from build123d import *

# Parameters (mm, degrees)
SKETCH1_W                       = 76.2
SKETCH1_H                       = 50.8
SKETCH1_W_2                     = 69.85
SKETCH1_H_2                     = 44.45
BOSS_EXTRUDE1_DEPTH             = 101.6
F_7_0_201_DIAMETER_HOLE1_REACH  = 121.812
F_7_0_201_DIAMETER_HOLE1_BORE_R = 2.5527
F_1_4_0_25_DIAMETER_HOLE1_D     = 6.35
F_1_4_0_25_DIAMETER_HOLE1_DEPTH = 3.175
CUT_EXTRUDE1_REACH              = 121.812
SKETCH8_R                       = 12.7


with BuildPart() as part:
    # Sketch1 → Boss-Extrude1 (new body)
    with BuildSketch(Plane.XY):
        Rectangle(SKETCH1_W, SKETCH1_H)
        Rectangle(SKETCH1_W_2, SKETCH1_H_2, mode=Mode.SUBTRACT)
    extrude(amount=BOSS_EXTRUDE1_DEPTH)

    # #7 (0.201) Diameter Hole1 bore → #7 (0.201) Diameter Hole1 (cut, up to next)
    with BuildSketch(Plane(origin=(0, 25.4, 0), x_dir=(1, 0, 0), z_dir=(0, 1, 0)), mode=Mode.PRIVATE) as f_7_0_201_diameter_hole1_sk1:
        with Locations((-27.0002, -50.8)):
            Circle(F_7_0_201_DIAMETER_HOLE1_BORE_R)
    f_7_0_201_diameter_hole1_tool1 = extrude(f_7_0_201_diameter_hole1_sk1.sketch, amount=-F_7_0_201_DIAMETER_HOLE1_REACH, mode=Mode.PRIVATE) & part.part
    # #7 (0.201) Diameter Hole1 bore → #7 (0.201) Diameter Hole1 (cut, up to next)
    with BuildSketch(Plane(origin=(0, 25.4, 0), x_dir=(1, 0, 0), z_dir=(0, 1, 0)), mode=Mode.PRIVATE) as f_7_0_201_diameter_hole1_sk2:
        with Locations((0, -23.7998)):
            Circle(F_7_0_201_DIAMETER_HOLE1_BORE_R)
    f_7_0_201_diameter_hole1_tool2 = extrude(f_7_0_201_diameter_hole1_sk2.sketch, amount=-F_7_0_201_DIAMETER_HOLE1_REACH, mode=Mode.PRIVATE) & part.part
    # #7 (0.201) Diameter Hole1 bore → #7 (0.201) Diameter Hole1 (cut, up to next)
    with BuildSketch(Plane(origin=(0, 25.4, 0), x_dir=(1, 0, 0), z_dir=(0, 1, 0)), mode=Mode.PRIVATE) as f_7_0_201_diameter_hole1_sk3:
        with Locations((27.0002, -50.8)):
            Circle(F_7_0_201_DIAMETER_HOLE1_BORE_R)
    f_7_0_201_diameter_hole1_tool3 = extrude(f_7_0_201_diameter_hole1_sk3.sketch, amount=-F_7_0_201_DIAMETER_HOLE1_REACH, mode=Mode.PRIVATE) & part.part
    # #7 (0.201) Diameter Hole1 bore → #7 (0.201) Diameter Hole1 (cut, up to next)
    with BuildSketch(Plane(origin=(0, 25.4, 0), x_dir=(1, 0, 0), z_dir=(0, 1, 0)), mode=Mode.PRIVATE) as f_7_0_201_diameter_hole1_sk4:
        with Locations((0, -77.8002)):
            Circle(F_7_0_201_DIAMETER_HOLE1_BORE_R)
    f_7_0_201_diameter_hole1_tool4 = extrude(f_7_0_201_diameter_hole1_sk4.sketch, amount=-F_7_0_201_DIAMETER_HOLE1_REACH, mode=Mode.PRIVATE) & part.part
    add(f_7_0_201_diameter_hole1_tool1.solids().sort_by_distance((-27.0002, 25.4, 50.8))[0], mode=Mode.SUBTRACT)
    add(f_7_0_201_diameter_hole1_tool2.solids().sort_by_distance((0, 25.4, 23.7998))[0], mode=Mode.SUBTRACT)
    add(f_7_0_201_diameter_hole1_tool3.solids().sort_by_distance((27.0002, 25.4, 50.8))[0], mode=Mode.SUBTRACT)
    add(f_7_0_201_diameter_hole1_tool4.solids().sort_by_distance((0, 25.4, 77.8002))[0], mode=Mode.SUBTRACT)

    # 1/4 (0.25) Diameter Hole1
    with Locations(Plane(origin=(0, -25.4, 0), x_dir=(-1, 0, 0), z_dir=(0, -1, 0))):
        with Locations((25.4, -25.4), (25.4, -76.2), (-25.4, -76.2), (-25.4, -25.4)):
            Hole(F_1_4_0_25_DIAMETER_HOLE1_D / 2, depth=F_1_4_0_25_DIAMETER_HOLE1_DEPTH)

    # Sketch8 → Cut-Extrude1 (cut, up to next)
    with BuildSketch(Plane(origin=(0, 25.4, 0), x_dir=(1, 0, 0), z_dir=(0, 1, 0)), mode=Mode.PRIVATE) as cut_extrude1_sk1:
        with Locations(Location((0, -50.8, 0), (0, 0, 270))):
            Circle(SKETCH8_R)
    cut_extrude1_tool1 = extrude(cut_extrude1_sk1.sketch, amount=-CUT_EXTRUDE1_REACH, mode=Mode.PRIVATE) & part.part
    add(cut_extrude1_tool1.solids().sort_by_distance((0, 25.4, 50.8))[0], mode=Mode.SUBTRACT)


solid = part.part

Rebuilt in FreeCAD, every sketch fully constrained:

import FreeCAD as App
import Part
import Sketcher
from FreeCAD import Vector
Q = App.Units.Quantity

doc = App.newDocument("Part")
body = doc.addObject("PartDesign::Body", "Body")

sketch1 = body.newObject("Sketcher::SketchObject", "Sketch")
sketch1.AttachmentSupport = (doc.getObject("XY_Plane"), [""])
sketch1.MapMode = "FlatFace"
sketch1.addGeometry([
    Part.LineSegment(Vector(-38, 25, 0), Vector(-38, -25, 0)),
    Part.LineSegment(Vector(-38, -25, 0), Vector(38, -25, 0)),
    Part.LineSegment(Vector(38, -25, 0), Vector(38, 25, 0)),
    Part.LineSegment(Vector(38, 25, 0), Vector(-38, 25, 0)),
    Part.LineSegment(Vector(35, -22, 0), Vector(-35, -22, 0)),
    Part.LineSegment(Vector(-35, -22, 0), Vector(-35, 22, 0)),
    Part.LineSegment(Vector(-35, 22, 0), Vector(35, 22, 0)),
    Part.LineSegment(Vector(35, 22, 0), Vector(35, -22, 0)),
], False)
sketch1.addConstraint([
    Sketcher.Constraint("Coincident", 0, 2, 1, 1),
    Sketcher.Constraint("Coincident", 1, 2, 2, 1),
    Sketcher.Constraint("Coincident", 2, 2, 3, 1),
    Sketcher.Constraint("Coincident", 3, 2, 0, 1),
    Sketcher.Constraint("Coincident", 4, 2, 5, 1),
    Sketcher.Constraint("Coincident", 5, 2, 6, 1),
    Sketcher.Constraint("Coincident", 6, 2, 7, 1),
    Sketcher.Constraint("Coincident", 7, 2, 4, 1),
    Sketcher.Constraint("Vertical", 0),
    Sketcher.Constraint("Horizontal", 1),
    Sketcher.Constraint("Vertical", 2),
    Sketcher.Constraint("Horizontal", 3),
    Sketcher.Constraint("Horizontal", 4),
    Sketcher.Constraint("Vertical", 5),
    Sketcher.Constraint("Horizontal", 6),
    Sketcher.Constraint("Vertical", 7),
    Sketcher.Constraint("Symmetric", 0, 2, 2, 2, -1, 1),
    Sketcher.Constraint("Symmetric", 4, 2, 6, 2, -1, 1),
    Sketcher.Constraint("DistanceX", 1, 1, 1, 2, Q("3 in")),
    Sketcher.Constraint("DistanceY", 0, 2, 0, 1, Q("2 in")),
    Sketcher.Constraint("DistanceX", 4, 2, 4, 1, Q("2.75 in")),
    Sketcher.Constraint("DistanceY", 5, 1, 5, 2, Q("1.75 in")),
])
pad1 = body.newObject("PartDesign::Pad", "Pad")
pad1.Profile = sketch1
pad1.Length = Q("4 in")

sketch2 = body.newObject("Sketcher::SketchObject", "Sketch001")
sketch2.AttachmentSupport = (doc.getObject("XZ_Plane"), [""])
sketch2.MapMode = "FlatFace"
sketch2.AttachmentOffset = App.Placement(Vector(0, 0, -1 * 25.4), App.Rotation())
sketch2.addGeometry(Part.Circle(Vector(-27, 50.8, 0), Vector(0, 0, 1), 2.6), False)
sketch2.addConstraint([
    Sketcher.Constraint("Diameter", 0, Q("0.201 in")),
    Sketcher.Constraint("DistanceY", -1, 1, 0, 3, Q("2 in")),
    Sketcher.Constraint("DistanceX", 0, 3, -1, 1, Q("1.063 in")),
])
pocket1 = body.newObject("PartDesign::Pocket", "Pocket")
pocket1.Profile = sketch2
pocket1.Type = "UpToFirst"
pocket1.Reversed = True

sketch3 = body.newObject("Sketcher::SketchObject", "Sketch002")
sketch3.AttachmentSupport = (doc.getObject("XZ_Plane"), [""])
sketch3.MapMode = "FlatFace"
sketch3.AttachmentOffset = App.Placement(Vector(0, 0, -1 * 25.4), App.Rotation())
sketch3.addGeometry(Part.Circle(Vector(0, 23.8, 0), Vector(0, 0, 1), 2.6), False)
sketch3.addConstraint([
    Sketcher.Constraint("PointOnObject", 0, 3, -2),
    Sketcher.Constraint("Diameter", 0, Q("0.201 in")),
    Sketcher.Constraint("DistanceY", -1, 1, 0, 3, Q("0.937 in")),
])
pocket2 = body.newObject("PartDesign::Pocket", "Pocket001")
pocket2.Profile = sketch3
pocket2.Type = "UpToFirst"
pocket2.Reversed = True

sketch4 = body.newObject("Sketcher::SketchObject", "Sketch003")
sketch4.AttachmentSupport = (doc.getObject("XZ_Plane"), [""])
sketch4.MapMode = "FlatFace"
sketch4.AttachmentOffset = App.Placement(Vector(0, 0, -1 * 25.4), App.Rotation())
sketch4.addGeometry(Part.Circle(Vector(27, 50.8, 0), Vector(0, 0, 1), 2.6), False)
sketch4.addConstraint([
    Sketcher.Constraint("Diameter", 0, Q("0.201 in")),
    Sketcher.Constraint("DistanceY", -1, 1, 0, 3, Q("2 in")),
    Sketcher.Constraint("DistanceX", -1, 1, 0, 3, Q("1.063 in")),
])
pocket3 = body.newObject("PartDesign::Pocket", "Pocket002")
pocket3.Profile = sketch4
pocket3.Type = "UpToFirst"
pocket3.Reversed = True

sketch5 = body.newObject("Sketcher::SketchObject", "Sketch004")
sketch5.AttachmentSupport = (doc.getObject("XZ_Plane"), [""])
sketch5.MapMode = "FlatFace"
sketch5.AttachmentOffset = App.Placement(Vector(0, 0, -1 * 25.4), App.Rotation())
sketch5.addGeometry(Part.Circle(Vector(0, 77.8, 0), Vector(0, 0, 1), 2.6), False)
sketch5.addConstraint([
    Sketcher.Constraint("PointOnObject", 0, 3, -2),
    Sketcher.Constraint("Diameter", 0, Q("0.201 in")),
    Sketcher.Constraint("DistanceY", -1, 1, 0, 3, Q("3.063 in")),
])
pocket4 = body.newObject("PartDesign::Pocket", "Pocket003")
pocket4.Profile = sketch5
pocket4.Type = "UpToFirst"
pocket4.Reversed = True

sketch6 = body.newObject("Sketcher::SketchObject", "Sketch005")
sketch6.AttachmentSupport = (doc.getObject("XZ_Plane"), [""])
sketch6.MapMode = "FlatFace"
sketch6.AttachmentOffset = App.Placement(Vector(0, 0, 1 * 25.4), App.Rotation())
sketch6.addGeometry([
    Part.Circle(Vector(-25.4, 25.4, 0), Vector(0, 0, 1), 3.2),
    Part.Circle(Vector(-25.4, 76.2, 0), Vector(0, 0, 1), 3.2),
    Part.Circle(Vector(25.4, 76.2, 0), Vector(0, 0, 1), 3.2),
    Part.Circle(Vector(25.4, 25.4, 0), Vector(0, 0, 1), 3.2),
], False)
sketch6.addConstraint([
    Sketcher.Constraint("Equal", 0, 1),
    Sketcher.Constraint("Equal", 1, 2),
    Sketcher.Constraint("Equal", 2, 3),
    Sketcher.Constraint("Symmetric", 1, 3, 2, 3, -2),
    Sketcher.Constraint("Symmetric", 0, 3, 3, 3, -2),
    Sketcher.Constraint("Vertical", 0, 3, 1, 3),
    Sketcher.Constraint("Diameter", 0, Q("0.25 in")),
    Sketcher.Constraint("DistanceX", 0, 3, -1, 1, Q("1 in")),
    Sketcher.Constraint("DistanceY", -1, 1, 0, 3, Q("1 in")),
    Sketcher.Constraint("DistanceY", -1, 1, 1, 3, Q("3 in")),
])
doc.recompute()
hole = body.newObject("PartDesign::Hole", "Hole")
hole.Profile = sketch6
hole.ThreadType = "None"
hole.Diameter = Q("0.25 in")
hole.DepthType = "Dimension"
hole.Depth = Q("0.125 in")
hole.DrillPoint = "Flat"

sketch7 = body.newObject("Sketcher::SketchObject", "Sketch006")
sketch7.AttachmentSupport = (doc.getObject("XZ_Plane"), [""])
sketch7.MapMode = "FlatFace"
sketch7.AttachmentOffset = App.Placement(Vector(0, 0, -1 * 25.4), App.Rotation())
sketch7.addGeometry(Part.Circle(Vector(0, 51, 0), Vector(0, 0, 1), 13), False)
sketch7.addConstraint([
    Sketcher.Constraint("PointOnObject", 0, 3, -2),
    Sketcher.Constraint("Diameter", 0, Q("1 in")),
    Sketcher.Constraint("DistanceY", -1, 1, 0, 3, Q("2 in")),
])
pocket5 = body.newObject("PartDesign::Pocket", "Pocket004")
pocket5.Profile = sketch7
pocket5.Type = "UpToFirst"
pocket5.Reversed = True

doc.recompute()
